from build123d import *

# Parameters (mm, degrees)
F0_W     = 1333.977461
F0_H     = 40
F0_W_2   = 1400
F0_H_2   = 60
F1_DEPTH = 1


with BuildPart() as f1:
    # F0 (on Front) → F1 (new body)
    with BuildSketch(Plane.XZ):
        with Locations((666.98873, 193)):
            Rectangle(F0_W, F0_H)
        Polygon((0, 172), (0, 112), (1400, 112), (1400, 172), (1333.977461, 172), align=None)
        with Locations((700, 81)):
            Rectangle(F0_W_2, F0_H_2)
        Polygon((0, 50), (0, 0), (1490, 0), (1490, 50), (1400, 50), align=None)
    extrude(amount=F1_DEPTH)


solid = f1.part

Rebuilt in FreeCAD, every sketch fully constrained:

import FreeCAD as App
import Part
import Sketcher
from FreeCAD import Vector


def add_polygon(sketch, points):
    """Adds a closed chain of lines whose ends are joined by coincident constraints."""
    first, n = sketch.GeometryCount, len(points)
    for a, b in zip(points, points[1:] + points[:1]):
        sketch.addGeometry(Part.LineSegment(App.Vector(*a, 0), App.Vector(*b, 0)), False)
    for i in range(n):
        sketch.addConstraint(Sketcher.Constraint("Coincident", first + i, 2, first + (i + 1) % n, 1))

doc = App.newDocument("Part")
body = doc.addObject("PartDesign::Body", "Body")
body.AllowCompound = True

sketch1 = body.newObject("Sketcher::SketchObject", "Sketch")
sketch1.AttachmentSupport = (doc.getObject("XZ_Plane"), [""])
sketch1.MapMode = "FlatFace"
add_polygon(sketch1, [(0, 213), (0, 173), (1333.977461, 173), (1333.977461, 213)])
add_polygon(sketch1, [(0, 172), (0, 112), (1400, 112), (1400, 172)])
add_polygon(sketch1, [(0, 111), (0, 51), (1400, 51), (1400, 111)])
add_polygon(sketch1, [(0, 50), (0, 0), (1490, 0), (1490, 50)])
sketch1.addConstraint([
    Sketcher.Constraint("Vertical", 0),
    Sketcher.Constraint("Horizontal", 1),
    Sketcher.Constraint("Vertical", 2),
    Sketcher.Constraint("Horizontal", 3),
    Sketcher.Constraint("Vertical", 4),
    Sketcher.Constraint("Horizontal", 5),
    Sketcher.Constraint("Vertical", 6),
    Sketcher.Constraint("Horizontal", 7),
    Sketcher.Constraint("Vertical", 8),
    Sketcher.Constraint("Horizontal", 9),
    Sketcher.Constraint("Vertical", 10),
    Sketcher.Constraint("Horizontal", 11),
    Sketcher.Constraint("Vertical", 12),
    Sketcher.Constraint("Horizontal", 13),
    Sketcher.Constraint("Vertical", 14),
    Sketcher.Constraint("Horizontal", 15),
    Sketcher.Constraint("Coincident", 12, 2, -1, 1),
    Sketcher.Constraint("PointOnObject", 0, 2, -2),
    Sketcher.Constraint("PointOnObject", 4, 2, -2),
    Sketcher.Constraint("PointOnObject", 8, 2, -2),
    Sketcher.Constraint("Vertical", 6, 2, 9, 2),
    Sketcher.Constraint("Equal", 6, 8),
    Sketcher.Constraint("DistanceX", 5, 1, 5, 2, 1400.0),
    Sketcher.Constraint("DistanceX", 13, 1, 13, 2, 1490.0),
    Sketcher.Constraint("DistanceY", 0, 2, 0, 1, 40.0),
    Sketcher.Constraint("DistanceY", 4, 2, 4, 1, 60.0),
    Sketcher.Constraint("DistanceY", 12, 2, 12, 1, 50.0),
    Sketcher.Constraint("DistanceY", -1, 1, 0, 2, 173.0),
    Sketcher.Constraint("DistanceY", -1, 1, 4, 2, 112.0),
    Sketcher.Constraint("DistanceY", -1, 1, 8, 2, 51.0),
    Sketcher.Constraint("DistanceX", 1, 1, 1, 2, 1333.977461),
])
pad1 = body.newObject("PartDesign::Pad", "Pad")
pad1.Profile = sketch1
pad1.Length = 1

doc.recompute()
